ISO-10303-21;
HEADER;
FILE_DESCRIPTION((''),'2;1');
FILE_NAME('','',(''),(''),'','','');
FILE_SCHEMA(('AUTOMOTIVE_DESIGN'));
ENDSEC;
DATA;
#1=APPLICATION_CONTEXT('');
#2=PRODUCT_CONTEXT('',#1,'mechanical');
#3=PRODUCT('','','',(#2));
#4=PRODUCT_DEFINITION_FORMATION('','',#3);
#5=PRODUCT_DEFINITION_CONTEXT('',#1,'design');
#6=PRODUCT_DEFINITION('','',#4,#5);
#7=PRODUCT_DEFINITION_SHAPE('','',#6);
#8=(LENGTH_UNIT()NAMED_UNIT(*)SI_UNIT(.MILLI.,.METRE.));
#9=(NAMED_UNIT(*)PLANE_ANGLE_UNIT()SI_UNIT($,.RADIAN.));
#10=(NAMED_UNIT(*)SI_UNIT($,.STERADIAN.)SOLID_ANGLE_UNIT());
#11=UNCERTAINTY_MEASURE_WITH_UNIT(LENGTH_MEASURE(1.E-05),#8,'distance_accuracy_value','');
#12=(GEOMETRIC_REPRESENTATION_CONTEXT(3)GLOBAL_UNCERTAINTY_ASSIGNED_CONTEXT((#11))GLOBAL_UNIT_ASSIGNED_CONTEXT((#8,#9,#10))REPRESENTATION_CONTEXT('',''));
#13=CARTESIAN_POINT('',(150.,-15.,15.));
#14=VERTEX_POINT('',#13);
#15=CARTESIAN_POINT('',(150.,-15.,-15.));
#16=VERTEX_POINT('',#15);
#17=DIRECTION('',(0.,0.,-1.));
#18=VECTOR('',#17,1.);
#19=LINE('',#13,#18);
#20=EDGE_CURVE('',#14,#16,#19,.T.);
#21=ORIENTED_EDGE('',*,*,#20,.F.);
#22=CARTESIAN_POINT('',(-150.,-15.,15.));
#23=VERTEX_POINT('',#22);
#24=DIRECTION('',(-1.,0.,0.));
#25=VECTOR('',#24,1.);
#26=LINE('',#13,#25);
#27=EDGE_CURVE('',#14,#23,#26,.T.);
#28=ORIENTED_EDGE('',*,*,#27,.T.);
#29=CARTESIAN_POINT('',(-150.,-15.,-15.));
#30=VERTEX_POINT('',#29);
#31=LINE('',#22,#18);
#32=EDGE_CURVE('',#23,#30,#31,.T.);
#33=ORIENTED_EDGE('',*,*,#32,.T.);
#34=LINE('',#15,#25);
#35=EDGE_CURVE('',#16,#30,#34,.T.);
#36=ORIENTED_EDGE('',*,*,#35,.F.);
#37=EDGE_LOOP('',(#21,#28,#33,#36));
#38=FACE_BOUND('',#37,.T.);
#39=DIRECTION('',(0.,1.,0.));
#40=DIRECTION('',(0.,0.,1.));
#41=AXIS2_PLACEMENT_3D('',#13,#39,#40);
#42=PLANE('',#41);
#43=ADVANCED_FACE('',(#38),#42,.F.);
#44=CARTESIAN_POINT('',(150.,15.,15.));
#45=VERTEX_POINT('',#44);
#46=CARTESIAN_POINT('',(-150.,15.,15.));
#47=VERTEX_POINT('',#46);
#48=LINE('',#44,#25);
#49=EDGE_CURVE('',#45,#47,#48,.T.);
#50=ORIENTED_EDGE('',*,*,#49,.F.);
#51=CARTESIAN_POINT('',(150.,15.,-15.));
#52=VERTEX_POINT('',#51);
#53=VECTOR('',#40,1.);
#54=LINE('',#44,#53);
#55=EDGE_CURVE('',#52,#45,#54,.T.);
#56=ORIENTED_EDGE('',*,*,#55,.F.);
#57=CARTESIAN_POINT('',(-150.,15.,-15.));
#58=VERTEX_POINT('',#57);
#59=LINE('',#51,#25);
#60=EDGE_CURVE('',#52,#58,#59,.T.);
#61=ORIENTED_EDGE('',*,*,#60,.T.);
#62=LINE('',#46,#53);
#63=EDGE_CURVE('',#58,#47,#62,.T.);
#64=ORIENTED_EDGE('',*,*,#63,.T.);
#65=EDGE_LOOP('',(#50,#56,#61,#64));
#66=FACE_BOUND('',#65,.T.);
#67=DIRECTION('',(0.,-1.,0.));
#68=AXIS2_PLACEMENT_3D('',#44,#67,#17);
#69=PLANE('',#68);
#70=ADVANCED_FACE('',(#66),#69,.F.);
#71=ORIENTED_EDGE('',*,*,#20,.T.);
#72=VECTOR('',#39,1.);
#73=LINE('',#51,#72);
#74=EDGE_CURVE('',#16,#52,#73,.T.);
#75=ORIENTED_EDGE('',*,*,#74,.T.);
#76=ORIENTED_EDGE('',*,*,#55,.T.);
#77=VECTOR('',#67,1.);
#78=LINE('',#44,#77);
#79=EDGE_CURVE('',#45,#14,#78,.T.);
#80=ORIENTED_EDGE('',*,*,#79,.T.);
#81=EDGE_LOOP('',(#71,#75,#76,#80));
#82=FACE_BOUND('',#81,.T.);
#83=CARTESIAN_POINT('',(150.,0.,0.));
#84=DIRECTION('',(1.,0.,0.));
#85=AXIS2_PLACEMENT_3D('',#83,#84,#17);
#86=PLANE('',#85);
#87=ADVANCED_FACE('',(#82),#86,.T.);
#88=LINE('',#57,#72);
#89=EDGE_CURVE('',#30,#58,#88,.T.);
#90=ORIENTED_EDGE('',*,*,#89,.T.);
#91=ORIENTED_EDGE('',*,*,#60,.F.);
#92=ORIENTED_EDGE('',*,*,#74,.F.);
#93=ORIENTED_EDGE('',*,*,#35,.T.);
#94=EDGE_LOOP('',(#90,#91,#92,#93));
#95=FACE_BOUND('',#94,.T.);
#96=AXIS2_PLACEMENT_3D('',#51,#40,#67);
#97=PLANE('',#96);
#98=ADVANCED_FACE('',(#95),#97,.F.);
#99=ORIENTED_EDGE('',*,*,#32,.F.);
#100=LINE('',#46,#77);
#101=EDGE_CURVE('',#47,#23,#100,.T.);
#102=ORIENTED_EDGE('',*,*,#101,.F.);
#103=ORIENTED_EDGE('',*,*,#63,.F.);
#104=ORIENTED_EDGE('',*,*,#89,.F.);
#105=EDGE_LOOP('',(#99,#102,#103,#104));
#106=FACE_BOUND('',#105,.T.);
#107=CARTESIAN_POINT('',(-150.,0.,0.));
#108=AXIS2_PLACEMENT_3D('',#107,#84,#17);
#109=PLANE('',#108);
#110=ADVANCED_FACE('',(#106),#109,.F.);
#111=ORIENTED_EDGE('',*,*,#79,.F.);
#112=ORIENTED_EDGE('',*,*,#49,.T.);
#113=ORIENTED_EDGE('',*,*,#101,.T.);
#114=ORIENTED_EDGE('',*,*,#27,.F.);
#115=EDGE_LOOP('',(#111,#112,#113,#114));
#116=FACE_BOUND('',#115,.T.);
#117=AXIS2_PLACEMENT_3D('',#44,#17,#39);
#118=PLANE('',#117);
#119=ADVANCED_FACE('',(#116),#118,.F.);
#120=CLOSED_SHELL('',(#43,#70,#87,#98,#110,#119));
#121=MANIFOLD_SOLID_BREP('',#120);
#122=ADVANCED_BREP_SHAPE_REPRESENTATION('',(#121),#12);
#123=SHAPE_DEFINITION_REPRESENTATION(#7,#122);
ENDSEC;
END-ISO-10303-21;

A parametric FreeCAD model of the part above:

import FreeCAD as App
import Part
import Sketcher
from FreeCAD import Vector


def add_polygon(sketch, points):
    """Adds a closed chain of lines whose ends are joined by coincident constraints."""
    first, n = sketch.GeometryCount, len(points)
    for a, b in zip(points, points[1:] + points[:1]):
        sketch.addGeometry(Part.LineSegment(App.Vector(*a, 0), App.Vector(*b, 0)), False)
    for i in range(n):
        sketch.addConstraint(Sketcher.Constraint("Coincident", first + i, 2, first + (i + 1) % n, 1))

doc = App.newDocument("Part")
body = doc.addObject("PartDesign::Body", "Body")

sketch1 = body.newObject("Sketcher::SketchObject", "Sketch")
sketch1.AttachmentSupport = (doc.getObject("YZ_Plane"), [""])
sketch1.MapMode = "FlatFace"
add_polygon(sketch1, [(15, 15), (-15, 15), (-15, -15), (15, -15)])
sketch1.addConstraint(Sketcher.Constraint("Horizontal", 0))
sketch1.addConstraint(Sketcher.Constraint("Vertical", 1))
sketch1.addConstraint(Sketcher.Constraint("Horizontal", 2))
sketch1.addConstraint(Sketcher.Constraint("Vertical", 3))
sketch1.addConstraint(Sketcher.Constraint("Symmetric", 0, 2, 2, 2, -1, 1))
sketch1.addConstraint(Sketcher.Constraint("Equal", 2, 1))
sketch1.addConstraint(Sketcher.Constraint("DistanceX", 0, 2, 0, 1, 30.0))
pad1 = body.newObject("PartDesign::Pad", "Pad")
pad1.Profile = sketch1
pad1.Length = 300
pad1.Midplane = True

doc.recompute()
